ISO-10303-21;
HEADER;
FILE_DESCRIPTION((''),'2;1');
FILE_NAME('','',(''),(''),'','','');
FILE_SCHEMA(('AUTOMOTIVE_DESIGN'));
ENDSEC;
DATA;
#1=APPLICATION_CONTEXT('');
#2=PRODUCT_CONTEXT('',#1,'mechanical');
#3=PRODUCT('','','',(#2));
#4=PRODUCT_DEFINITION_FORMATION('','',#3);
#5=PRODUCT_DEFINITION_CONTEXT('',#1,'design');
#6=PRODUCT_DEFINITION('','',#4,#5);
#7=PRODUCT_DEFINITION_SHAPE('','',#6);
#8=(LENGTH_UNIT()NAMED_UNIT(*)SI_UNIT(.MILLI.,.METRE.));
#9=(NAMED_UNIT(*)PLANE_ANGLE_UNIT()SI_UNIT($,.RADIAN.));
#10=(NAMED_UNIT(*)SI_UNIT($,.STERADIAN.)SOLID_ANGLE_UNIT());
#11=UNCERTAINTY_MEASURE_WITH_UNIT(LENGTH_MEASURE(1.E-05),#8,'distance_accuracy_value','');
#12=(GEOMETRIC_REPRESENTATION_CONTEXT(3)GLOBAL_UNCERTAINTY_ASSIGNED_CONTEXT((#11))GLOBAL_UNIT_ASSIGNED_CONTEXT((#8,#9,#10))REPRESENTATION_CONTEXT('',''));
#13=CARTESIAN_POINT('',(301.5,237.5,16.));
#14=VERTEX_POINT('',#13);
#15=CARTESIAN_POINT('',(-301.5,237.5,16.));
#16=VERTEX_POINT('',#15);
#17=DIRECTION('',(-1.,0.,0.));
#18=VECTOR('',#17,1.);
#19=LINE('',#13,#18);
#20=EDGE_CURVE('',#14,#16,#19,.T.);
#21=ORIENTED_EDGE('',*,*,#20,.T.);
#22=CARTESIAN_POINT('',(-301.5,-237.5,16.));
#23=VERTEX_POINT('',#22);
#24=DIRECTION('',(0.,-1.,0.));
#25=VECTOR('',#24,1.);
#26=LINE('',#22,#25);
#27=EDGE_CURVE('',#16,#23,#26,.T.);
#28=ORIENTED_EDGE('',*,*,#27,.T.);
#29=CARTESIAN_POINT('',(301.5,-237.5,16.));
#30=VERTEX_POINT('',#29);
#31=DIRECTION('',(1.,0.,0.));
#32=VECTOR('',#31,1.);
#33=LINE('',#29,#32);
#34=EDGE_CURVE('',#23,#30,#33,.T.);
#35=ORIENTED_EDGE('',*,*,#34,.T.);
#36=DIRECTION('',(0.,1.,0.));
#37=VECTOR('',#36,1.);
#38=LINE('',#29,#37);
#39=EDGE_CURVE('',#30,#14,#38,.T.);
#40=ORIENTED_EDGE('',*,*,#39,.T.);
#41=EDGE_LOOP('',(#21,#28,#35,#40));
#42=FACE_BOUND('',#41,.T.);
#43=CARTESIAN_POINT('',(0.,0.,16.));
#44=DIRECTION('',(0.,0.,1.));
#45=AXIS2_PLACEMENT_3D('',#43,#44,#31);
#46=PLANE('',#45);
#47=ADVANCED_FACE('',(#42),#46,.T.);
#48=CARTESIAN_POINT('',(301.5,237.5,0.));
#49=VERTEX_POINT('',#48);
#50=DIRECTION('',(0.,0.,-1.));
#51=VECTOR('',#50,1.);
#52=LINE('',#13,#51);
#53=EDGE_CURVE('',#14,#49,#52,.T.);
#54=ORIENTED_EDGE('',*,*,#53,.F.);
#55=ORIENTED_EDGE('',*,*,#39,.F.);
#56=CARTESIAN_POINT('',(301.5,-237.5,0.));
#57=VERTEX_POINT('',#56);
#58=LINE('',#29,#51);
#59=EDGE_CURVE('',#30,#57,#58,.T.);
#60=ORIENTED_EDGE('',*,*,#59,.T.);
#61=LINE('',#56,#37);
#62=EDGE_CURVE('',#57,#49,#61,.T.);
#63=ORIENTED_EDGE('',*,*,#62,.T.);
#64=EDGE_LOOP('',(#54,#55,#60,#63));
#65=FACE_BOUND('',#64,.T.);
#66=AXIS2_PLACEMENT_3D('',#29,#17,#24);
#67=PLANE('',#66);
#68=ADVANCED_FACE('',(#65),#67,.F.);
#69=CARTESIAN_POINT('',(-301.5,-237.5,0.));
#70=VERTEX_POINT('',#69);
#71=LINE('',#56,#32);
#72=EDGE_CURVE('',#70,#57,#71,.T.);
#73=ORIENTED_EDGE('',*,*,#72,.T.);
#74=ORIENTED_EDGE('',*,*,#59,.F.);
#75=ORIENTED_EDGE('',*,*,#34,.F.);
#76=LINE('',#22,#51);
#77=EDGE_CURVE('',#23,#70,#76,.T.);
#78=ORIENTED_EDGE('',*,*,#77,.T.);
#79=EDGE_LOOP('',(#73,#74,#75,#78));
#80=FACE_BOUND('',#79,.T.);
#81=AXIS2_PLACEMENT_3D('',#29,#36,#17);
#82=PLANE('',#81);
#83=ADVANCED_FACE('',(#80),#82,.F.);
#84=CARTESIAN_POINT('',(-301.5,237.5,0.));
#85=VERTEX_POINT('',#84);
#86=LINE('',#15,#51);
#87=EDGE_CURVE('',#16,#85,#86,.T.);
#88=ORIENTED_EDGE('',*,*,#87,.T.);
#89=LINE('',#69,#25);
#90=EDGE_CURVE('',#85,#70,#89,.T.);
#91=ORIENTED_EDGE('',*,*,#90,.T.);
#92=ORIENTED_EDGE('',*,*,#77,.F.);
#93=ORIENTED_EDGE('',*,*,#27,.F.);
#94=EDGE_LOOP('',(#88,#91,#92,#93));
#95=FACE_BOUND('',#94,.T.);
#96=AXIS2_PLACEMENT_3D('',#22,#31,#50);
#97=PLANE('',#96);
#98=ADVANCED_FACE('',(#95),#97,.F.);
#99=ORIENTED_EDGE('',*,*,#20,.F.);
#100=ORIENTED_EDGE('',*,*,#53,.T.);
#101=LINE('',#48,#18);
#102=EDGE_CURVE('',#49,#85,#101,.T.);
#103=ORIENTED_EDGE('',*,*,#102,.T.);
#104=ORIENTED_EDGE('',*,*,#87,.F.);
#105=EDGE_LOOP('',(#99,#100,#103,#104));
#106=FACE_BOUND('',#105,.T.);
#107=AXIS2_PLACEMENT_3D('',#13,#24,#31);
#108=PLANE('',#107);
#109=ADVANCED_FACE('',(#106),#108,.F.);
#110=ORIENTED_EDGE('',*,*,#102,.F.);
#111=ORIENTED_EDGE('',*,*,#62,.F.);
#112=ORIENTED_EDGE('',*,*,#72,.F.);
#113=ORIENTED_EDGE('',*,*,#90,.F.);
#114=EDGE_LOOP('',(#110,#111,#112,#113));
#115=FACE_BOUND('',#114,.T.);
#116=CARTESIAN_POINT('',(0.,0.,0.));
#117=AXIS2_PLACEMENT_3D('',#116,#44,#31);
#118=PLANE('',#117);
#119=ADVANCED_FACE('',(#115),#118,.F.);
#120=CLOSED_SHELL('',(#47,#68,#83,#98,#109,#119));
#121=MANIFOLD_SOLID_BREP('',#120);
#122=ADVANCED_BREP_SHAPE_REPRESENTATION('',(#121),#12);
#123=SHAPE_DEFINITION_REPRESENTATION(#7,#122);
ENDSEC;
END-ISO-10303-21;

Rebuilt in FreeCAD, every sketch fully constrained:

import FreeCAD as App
import Part
import Sketcher
from FreeCAD import Vector


def add_polygon(sketch, points):
    """Adds a closed chain of lines whose ends are joined by coincident constraints."""
    first, n = sketch.GeometryCount, len(points)
    for a, b in zip(points, points[1:] + points[:1]):
        sketch.addGeometry(Part.LineSegment(App.Vector(*a, 0), App.Vector(*b, 0)), False)
    for i in range(n):
        sketch.addConstraint(Sketcher.Constraint("Coincident", first + i, 2, first + (i + 1) % n, 1))

doc = App.newDocument("Part")
body = doc.addObject("PartDesign::Body", "Body")

# Sketch on XY plane
sketch1 = body.newObject("Sketcher::SketchObject", "Sketch")
sketch1.AttachmentSupport = (doc.getObject("XY_Plane"), [""])
sketch1.MapMode = "FlatFace"
add_polygon(sketch1, [(-302, 238), (-302, -238), (302, -238), (302, 238)])  # lines 0-3
sketch1.addConstraint([
    Sketcher.Constraint("Vertical", 0),
    Sketcher.Constraint("Horizontal", 1),
    Sketcher.Constraint("Vertical", 2),
    Sketcher.Constraint("Horizontal", 3),
    Sketcher.Constraint("Symmetric", 0, 2, 2, 2, -1, 1),
    Sketcher.Constraint("DistanceX", 1, 1, 1, 2, 603.0),
    Sketcher.Constraint("DistanceY", 0, 2, 0, 1, 475.0),
])
pad1 = body.newObject("PartDesign::Pad", "Pad")
pad1.Profile = sketch1
pad1.Length = 16

doc.recompute()
